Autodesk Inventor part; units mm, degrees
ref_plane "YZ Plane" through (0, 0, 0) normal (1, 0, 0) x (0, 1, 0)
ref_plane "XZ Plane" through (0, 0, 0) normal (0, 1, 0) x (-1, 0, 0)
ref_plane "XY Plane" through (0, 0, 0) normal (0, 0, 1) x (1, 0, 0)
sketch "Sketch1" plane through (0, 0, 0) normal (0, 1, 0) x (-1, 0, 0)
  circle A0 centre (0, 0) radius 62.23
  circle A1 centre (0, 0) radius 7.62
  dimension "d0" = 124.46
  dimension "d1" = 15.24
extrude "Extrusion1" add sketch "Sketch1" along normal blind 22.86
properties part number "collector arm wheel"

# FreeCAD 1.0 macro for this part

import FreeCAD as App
import Part
import Sketcher
Q = App.Units.Quantity

doc = App.newDocument("Part")
params = doc.addObject("Spreadsheet::Sheet", "Params")
for row, (alias, value) in enumerate([
    ("sketch1_diameter", "4.9 in"),
    ("sketch1_diameter2", "0.6 in"),
    ("pad1_length", "0.9 in"),
], start=1):
    params.set(f"A{row}", alias)
    params.set(f"B{row}", "=" + value)
    params.setAlias(f"B{row}", alias)

body = doc.addObject("PartDesign::Body", "Body")

# Sketch on XZ plane
sketch1 = body.newObject("Sketcher::SketchObject", "Sketch")
sketch1.AttachmentSupport = (doc.getObject("XZ_Plane"), [""])
sketch1.MapMode = "FlatFace"
sketch1.addGeometry(Part.Circle(App.Vector(0, 0, 0), App.Vector(0, 0, 1), 62), False)
sketch1.addGeometry(Part.Circle(App.Vector(0, 0, 0), App.Vector(0, 0, 1), 8), False)
sketch1.addConstraint(Sketcher.Constraint("Coincident", 0, 3, -1, 1))
sketch1.addConstraint(Sketcher.Constraint("Coincident", 1, 3, -1, 1))
sketch1.addConstraint(Sketcher.Constraint("Diameter", 0, Q("4.9 in")))
sketch1.addConstraint(Sketcher.Constraint("Diameter", 1, Q("0.6 in")))
sketch1.setExpression("Constraints[2]", "Params.sketch1_diameter")
sketch1.setExpression("Constraints[3]", "Params.sketch1_diameter2")
pad1 = body.newObject("PartDesign::Pad", "Pad")
pad1.Profile = sketch1
pad1.setExpression("Length", "Params.pad1_length")
pad1.Reversed = True

doc.recompute()
